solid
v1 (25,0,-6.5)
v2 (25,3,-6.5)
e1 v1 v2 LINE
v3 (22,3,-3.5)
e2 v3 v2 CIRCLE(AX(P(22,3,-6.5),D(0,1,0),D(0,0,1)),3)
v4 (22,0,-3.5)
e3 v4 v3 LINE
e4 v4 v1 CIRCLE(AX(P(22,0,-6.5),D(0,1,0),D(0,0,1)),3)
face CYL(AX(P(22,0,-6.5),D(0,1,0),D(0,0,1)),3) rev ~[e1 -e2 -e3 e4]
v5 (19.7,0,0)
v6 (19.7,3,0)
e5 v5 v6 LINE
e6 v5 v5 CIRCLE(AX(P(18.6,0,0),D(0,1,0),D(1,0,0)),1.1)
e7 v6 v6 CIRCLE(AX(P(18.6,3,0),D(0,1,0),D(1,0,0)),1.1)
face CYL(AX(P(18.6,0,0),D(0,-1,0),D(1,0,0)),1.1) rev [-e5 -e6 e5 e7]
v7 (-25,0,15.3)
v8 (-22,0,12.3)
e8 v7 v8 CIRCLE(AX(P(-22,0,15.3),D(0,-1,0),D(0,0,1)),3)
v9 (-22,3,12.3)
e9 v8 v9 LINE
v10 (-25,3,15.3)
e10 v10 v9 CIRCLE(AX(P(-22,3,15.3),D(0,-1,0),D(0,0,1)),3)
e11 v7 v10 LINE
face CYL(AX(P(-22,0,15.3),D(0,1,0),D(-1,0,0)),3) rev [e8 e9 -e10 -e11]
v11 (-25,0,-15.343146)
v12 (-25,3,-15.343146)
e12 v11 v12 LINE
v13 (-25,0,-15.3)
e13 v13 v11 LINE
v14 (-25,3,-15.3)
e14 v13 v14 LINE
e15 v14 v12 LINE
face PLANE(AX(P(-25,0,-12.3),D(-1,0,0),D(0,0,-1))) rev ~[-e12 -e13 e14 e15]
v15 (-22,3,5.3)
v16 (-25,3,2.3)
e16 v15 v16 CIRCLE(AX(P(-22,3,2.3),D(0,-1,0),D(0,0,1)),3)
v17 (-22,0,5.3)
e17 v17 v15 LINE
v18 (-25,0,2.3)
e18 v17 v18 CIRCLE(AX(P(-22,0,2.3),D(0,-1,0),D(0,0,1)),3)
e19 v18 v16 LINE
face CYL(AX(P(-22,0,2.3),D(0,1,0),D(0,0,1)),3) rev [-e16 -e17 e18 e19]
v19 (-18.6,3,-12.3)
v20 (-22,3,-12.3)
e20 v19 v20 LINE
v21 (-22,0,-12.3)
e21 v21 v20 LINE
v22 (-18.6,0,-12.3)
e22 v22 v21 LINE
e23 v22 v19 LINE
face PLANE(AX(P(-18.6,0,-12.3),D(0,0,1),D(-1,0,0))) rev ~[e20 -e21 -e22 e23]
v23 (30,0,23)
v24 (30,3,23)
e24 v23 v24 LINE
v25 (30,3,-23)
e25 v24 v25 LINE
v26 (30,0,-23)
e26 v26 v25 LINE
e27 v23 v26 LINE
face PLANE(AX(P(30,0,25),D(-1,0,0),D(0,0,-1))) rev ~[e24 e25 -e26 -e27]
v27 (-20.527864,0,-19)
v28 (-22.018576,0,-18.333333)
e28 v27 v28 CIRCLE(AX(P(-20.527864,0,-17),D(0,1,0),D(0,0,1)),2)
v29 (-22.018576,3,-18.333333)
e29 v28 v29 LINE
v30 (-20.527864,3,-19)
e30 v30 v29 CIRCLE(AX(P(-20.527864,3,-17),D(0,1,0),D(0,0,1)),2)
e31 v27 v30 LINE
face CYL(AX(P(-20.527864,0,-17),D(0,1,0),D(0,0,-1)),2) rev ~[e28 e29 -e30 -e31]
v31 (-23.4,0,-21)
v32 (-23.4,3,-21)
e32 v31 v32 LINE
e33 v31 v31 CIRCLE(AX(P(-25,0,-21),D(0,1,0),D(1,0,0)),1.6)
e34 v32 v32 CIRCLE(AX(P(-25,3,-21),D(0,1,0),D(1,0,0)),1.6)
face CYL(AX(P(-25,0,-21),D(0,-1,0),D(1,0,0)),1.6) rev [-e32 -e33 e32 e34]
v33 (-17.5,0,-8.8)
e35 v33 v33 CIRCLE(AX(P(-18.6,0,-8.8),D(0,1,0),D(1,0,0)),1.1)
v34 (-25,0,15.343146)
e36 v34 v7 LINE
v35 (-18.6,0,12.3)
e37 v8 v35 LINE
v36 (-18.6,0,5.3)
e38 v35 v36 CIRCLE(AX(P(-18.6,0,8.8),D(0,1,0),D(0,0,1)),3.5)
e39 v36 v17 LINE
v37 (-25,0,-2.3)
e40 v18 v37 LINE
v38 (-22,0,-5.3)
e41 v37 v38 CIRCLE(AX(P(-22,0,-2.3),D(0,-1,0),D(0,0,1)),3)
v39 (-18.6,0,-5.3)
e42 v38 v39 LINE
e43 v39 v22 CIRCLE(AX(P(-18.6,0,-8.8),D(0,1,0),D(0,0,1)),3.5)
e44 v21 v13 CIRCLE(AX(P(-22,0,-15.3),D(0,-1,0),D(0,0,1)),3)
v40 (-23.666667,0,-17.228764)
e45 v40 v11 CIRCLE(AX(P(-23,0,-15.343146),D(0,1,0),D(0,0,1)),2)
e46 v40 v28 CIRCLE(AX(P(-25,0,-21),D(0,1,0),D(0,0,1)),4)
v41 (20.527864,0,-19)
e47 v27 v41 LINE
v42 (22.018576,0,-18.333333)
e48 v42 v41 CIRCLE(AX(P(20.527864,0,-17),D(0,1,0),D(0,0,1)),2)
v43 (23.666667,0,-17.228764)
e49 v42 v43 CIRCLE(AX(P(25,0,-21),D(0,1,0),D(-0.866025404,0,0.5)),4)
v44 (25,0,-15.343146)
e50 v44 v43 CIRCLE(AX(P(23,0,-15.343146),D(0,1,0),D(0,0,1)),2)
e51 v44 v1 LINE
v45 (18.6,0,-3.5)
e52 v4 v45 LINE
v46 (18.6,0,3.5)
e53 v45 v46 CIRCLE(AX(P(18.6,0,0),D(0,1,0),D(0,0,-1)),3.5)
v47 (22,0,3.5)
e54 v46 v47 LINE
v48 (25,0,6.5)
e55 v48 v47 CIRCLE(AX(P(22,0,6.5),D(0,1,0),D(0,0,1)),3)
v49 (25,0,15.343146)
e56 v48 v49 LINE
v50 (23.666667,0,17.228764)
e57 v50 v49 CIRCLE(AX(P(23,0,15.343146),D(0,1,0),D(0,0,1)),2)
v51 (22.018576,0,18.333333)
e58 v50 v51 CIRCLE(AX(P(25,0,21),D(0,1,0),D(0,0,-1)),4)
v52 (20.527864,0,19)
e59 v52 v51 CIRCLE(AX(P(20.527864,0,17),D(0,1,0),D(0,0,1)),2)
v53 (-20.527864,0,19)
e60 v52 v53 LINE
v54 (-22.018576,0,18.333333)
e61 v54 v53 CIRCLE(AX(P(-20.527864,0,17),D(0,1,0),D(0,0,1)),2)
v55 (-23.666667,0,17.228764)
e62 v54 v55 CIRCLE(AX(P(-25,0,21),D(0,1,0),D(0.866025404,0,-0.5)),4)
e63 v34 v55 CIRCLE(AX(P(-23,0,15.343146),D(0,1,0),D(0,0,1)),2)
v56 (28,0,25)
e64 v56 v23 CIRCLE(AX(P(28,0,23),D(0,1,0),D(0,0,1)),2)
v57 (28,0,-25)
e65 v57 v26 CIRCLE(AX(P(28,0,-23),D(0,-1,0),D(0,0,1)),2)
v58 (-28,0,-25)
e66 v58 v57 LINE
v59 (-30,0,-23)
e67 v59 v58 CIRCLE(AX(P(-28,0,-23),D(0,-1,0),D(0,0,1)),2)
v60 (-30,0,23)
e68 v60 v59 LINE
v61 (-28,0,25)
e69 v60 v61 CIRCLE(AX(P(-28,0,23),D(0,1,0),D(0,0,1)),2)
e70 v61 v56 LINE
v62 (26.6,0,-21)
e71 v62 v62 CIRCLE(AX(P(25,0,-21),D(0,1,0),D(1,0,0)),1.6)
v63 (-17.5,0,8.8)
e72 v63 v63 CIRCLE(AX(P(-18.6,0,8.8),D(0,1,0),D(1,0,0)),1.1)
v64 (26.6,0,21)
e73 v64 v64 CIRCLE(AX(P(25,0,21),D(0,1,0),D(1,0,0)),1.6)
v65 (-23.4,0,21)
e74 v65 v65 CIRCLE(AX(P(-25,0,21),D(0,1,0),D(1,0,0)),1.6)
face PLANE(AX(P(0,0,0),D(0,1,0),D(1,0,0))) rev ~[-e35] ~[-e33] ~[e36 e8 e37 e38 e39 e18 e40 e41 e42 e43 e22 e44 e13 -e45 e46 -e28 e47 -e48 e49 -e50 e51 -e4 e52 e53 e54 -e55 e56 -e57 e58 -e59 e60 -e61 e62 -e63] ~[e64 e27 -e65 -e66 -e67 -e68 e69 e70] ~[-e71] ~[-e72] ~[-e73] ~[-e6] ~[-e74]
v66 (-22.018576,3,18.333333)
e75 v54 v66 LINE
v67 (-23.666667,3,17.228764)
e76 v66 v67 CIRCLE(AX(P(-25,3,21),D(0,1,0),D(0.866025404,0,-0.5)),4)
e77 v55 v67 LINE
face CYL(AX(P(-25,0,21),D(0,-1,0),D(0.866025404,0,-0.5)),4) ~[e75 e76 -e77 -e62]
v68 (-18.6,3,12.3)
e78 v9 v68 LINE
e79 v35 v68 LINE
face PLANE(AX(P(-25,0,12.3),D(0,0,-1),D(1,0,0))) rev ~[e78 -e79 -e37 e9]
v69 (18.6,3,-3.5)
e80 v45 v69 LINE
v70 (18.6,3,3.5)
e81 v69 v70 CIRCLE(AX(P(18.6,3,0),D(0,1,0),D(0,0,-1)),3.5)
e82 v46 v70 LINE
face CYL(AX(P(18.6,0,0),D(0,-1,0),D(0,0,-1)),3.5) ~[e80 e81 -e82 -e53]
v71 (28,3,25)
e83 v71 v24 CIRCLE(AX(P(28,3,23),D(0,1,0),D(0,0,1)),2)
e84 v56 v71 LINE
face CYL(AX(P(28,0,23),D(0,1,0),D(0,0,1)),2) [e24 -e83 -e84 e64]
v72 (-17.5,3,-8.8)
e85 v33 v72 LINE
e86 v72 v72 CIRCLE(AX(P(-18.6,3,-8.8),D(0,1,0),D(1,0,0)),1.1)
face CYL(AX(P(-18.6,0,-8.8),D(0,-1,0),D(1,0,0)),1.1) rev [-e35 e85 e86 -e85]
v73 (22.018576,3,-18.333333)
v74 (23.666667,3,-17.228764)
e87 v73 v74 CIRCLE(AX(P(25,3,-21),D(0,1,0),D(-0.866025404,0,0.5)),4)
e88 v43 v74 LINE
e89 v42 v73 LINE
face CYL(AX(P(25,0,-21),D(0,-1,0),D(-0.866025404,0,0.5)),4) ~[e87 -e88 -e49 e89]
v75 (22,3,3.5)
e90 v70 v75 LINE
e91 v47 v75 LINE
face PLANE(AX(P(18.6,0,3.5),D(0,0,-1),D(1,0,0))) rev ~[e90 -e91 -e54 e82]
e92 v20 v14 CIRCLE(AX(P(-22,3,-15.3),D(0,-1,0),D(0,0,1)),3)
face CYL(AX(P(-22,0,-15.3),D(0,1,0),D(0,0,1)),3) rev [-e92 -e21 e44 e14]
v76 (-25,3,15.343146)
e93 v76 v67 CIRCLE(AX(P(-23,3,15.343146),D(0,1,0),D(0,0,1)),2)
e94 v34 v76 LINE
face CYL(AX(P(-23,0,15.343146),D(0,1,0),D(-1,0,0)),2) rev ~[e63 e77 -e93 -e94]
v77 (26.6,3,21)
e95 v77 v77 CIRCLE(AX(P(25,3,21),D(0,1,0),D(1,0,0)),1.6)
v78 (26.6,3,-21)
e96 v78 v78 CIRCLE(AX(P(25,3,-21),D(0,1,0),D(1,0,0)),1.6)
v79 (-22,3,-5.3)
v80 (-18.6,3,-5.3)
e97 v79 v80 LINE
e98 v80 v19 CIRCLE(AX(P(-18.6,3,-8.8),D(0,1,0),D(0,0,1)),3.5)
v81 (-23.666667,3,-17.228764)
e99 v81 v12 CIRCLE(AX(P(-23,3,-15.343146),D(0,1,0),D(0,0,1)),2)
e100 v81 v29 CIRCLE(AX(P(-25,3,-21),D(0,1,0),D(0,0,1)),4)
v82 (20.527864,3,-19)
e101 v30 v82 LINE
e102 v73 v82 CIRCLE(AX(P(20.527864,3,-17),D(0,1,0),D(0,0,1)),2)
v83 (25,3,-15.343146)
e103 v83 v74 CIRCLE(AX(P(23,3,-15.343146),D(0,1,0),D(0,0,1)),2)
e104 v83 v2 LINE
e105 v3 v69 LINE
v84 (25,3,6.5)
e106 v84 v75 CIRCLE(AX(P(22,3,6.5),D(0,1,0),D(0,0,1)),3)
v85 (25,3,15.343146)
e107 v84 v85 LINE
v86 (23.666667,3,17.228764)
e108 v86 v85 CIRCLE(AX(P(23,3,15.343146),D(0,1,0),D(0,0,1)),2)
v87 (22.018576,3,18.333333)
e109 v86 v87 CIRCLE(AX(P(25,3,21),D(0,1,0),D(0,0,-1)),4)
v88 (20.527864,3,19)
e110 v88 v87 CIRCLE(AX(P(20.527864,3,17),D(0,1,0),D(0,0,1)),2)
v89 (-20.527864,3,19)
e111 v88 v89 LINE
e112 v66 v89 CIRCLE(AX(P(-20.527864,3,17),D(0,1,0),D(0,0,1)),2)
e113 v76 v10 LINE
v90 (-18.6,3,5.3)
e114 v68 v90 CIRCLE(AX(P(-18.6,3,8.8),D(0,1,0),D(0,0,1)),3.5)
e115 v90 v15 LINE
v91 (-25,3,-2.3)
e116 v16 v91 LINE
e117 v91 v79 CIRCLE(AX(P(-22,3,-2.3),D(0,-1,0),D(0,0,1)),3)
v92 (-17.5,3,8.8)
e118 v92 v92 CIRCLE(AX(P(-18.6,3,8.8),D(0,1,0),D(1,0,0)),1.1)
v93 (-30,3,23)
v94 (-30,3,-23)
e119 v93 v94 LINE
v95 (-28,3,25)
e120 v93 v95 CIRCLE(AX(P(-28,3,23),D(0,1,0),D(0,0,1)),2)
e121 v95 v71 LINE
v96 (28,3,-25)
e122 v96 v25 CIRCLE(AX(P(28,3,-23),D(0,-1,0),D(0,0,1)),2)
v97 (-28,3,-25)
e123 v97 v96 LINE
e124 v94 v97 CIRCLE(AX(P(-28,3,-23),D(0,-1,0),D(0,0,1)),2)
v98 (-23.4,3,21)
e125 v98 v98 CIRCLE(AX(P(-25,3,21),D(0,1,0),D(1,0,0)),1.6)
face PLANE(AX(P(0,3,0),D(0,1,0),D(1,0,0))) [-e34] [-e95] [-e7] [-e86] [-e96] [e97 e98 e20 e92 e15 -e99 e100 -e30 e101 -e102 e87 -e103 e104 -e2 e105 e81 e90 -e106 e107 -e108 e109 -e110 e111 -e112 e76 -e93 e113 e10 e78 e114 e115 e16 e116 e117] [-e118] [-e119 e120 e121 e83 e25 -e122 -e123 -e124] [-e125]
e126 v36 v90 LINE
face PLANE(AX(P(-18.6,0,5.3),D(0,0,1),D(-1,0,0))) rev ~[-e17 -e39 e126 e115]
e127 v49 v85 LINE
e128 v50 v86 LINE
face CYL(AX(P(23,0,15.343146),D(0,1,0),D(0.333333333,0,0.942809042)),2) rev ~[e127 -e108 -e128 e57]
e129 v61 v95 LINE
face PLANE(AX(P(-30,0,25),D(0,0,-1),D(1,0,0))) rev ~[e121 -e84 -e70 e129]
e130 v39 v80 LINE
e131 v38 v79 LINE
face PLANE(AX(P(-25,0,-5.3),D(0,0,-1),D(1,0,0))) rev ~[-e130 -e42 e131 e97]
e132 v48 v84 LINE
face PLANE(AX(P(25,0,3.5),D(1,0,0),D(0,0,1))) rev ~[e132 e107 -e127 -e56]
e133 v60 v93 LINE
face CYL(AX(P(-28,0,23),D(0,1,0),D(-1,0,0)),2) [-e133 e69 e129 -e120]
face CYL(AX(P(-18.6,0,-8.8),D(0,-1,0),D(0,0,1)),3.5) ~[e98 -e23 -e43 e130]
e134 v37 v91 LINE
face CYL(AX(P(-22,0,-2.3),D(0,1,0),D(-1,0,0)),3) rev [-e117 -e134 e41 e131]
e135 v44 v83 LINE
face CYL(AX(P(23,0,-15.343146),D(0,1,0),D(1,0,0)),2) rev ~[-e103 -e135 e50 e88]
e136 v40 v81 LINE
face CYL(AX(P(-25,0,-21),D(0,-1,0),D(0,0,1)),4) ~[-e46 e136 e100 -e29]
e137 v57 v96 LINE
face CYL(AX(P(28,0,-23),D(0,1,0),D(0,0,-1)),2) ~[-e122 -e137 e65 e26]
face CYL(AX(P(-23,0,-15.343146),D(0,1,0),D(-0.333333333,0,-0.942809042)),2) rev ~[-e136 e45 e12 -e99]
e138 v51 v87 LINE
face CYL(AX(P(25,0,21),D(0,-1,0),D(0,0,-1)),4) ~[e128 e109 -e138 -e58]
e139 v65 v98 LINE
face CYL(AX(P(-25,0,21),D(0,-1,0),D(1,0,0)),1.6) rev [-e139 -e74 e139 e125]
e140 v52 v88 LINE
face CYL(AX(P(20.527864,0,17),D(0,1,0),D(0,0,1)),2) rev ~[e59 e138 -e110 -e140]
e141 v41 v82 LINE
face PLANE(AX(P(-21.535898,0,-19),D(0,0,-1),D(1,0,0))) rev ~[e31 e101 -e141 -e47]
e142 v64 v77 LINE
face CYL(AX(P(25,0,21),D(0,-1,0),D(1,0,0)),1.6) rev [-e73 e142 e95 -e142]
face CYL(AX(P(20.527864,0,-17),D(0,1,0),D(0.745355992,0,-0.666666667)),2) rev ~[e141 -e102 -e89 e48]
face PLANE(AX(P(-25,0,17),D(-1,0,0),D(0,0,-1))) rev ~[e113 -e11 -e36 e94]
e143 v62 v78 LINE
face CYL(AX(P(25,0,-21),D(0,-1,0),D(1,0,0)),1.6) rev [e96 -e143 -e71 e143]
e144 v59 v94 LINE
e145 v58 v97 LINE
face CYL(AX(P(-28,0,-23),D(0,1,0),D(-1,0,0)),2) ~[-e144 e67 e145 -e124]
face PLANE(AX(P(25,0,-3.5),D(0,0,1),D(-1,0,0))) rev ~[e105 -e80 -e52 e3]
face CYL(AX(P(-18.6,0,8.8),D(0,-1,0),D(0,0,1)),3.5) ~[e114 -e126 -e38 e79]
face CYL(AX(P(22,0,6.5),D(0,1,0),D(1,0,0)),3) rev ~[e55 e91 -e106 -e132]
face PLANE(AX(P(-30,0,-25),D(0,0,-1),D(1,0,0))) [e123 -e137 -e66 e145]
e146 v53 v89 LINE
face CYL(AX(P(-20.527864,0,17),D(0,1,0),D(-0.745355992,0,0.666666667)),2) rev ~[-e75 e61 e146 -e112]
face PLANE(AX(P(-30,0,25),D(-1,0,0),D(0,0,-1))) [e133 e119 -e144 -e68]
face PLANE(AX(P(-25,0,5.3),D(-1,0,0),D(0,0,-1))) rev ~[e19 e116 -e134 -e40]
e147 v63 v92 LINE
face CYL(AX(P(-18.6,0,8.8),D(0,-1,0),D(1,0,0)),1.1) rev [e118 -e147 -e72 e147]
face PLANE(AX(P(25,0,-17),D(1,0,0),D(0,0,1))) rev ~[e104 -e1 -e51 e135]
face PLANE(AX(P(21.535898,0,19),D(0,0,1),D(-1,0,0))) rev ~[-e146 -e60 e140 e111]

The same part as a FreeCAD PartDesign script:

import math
import FreeCAD as App
import Part
import Sketcher

V = App.Vector
Q = App.Units.Quantity


def edges_at(feature, points):
    """Names of the edges that pass closest to the given points."""
    edges = feature.Shape.Edges
    near = lambda p: min(range(len(edges)), key=lambda i: edges[i].distToShape(Part.Vertex(*p))[0])
    return sorted({f"Edge{near(p) + 1}" for p in points})


def add_polygon(sketch, points):
    """Adds a closed chain of lines whose ends are joined by coincident constraints."""
    first, n = sketch.GeometryCount, len(points)
    for a, b in zip(points, points[1:] + points[:1]):
        sketch.addGeometry(Part.LineSegment(App.Vector(*a, 0), App.Vector(*b, 0)), False)
    for i in range(n):
        sketch.addConstraint(Sketcher.Constraint("Coincident", first + i, 2, first + (i + 1) % n, 1))

doc = App.newDocument("Part")
body = doc.addObject("PartDesign::Body", "Body")

# Sketch on XZ plane
sketch1 = body.newObject("Sketcher::SketchObject", "Sketch")
sketch1.AttachmentSupport = (doc.getObject("XZ_Plane"), [""])
sketch1.MapMode = "FlatFace"
add_polygon(sketch1, [(-30, -25), (-30, 25), (30, 25), (30, -25)])  # lines 0-3
sketch1.addGeometry(Part.Circle(V(-25, 21, 0), V(0, 0, 1), 1.6), False)  # 4
sketch1.addGeometry(Part.Circle(V(-18.6, 8.8, 0), V(0, 0, 1), 1.1), False)  # 5
sketch1.addGeometry(Part.Circle(V(25, 21, 0), V(0, 0, 1), 1.6), False)  # 6
sketch1.addGeometry(Part.Circle(V(-18.6, -8.8, 0), V(0, 0, 1), 1.1), False)  # 7
sketch1.addGeometry(Part.Circle(V(-25, -21, 0), V(0, 0, 1), 1.6), False)  # 8
sketch1.addGeometry(Part.LineSegment(V(-18.6, 5.3, 0), V(-25, 5.3, 0)), False)  # 9
sketch1.addGeometry(Part.LineSegment(V(-25, 5.3, 0), V(-25, -5.3, 0)), False)  # 10
sketch1.addGeometry(Part.LineSegment(V(-25, -5.3, 0), V(-18.6, -5.3, 0)), False)  # 11
sketch1.addGeometry(Part.ArcOfCircle(Part.Circle(V(-18.6, -8.8, 0), V(0, 0, 1), 3.5), math.radians(-90), math.radians(90)), False)  # 12
sketch1.addGeometry(Part.LineSegment(V(-18.6, -12.3, 0), V(-25, -12.3, 0)), False)  # 13
sketch1.addGeometry(Part.LineSegment(V(-25, -12.3, 0), V(-25, -17, 0)), False)  # 14
sketch1.addGeometry(Part.ArcOfCircle(Part.Circle(V(-25, -21, 0), V(0, 0, 1), 4), math.radians(30), math.radians(90)), False)  # 15
sketch1.addGeometry(Part.LineSegment(V(-21.535898, -19, 0), V(21.535898, -19, 0)), False)  # 16
sketch1.addGeometry(Part.ArcOfCircle(Part.Circle(V(25, -21, 0), V(0, 0, 1), 4), math.radians(90), math.radians(150)), False)  # 17
sketch1.addGeometry(Part.LineSegment(V(25, -17, 0), V(25, -3.5, 0)), False)  # 18
sketch1.addGeometry(Part.LineSegment(V(25, -3.5, 0), V(18.6, -3.5, 0)), False)  # 19
sketch1.addGeometry(Part.ArcOfCircle(Part.Circle(V(18.6, 0, 0), V(0, 0, 1), 3.5), math.radians(90), math.radians(270)), False)  # 20
sketch1.addGeometry(Part.LineSegment(V(18.6, 3.5, 0), V(25, 3.5, 0)), False)  # 21
sketch1.addGeometry(Part.LineSegment(V(25, 3.5, 0), V(25, 17, 0)), False)  # 22
sketch1.addGeometry(Part.ArcOfCircle(Part.Circle(V(25, 21, 0), V(0, 0, 1), 4), math.radians(-150), math.radians(-90)), False)  # 23
sketch1.addGeometry(Part.LineSegment(V(21.535898, 19, 0), V(-21.535898, 19, 0)), False)  # 24
sketch1.addGeometry(Part.ArcOfCircle(Part.Circle(V(-25, 21, 0), V(0, 0, 1), 4), math.radians(-90), math.radians(-30)), False)  # 25
sketch1.addGeometry(Part.LineSegment(V(-25, 17, 0), V(-25, 12.3, 0)), False)  # 26
sketch1.addGeometry(Part.LineSegment(V(-25, 12.3, 0), V(-18.6, 12.3, 0)), False)  # 27
sketch1.addGeometry(Part.ArcOfCircle(Part.Circle(V(-18.6, 8.8, 0), V(0, 0, 1), 3.5), math.radians(-90), math.radians(90)), False)  # 28
sketch1.addGeometry(Part.Circle(V(18.6, 0, 0), V(0, 0, 1), 1.1), False)  # 29
sketch1.addGeometry(Part.Circle(V(25, -21, 0), V(0, 0, 1), 1.6), False)  # 30
sketch1.addConstraint(Sketcher.Constraint("Coincident", 9, 2, 10, 1))
sketch1.addConstraint(Sketcher.Constraint("Coincident", 10, 2, 11, 1))
sketch1.addConstraint(Sketcher.Constraint("Tangent", 11, 2, 12, 2))
sketch1.addConstraint(Sketcher.Constraint("Tangent", 12, 1, 13, 1))
sketch1.addConstraint(Sketcher.Constraint("Coincident", 13, 2, 14, 1))
sketch1.addConstraint(Sketcher.Constraint("Coincident", 14, 2, 15, 2))
sketch1.addConstraint(Sketcher.Constraint("Coincident", 15, 1, 16, 1))
sketch1.addConstraint(Sketcher.Constraint("Coincident", 16, 2, 17, 2))
sketch1.addConstraint(Sketcher.Constraint("Coincident", 17, 1, 18, 1))
sketch1.addConstraint(Sketcher.Constraint("Coincident", 18, 2, 19, 1))
sketch1.addConstraint(Sketcher.Constraint("Tangent", 19, 2, 20, 2))
sketch1.addConstraint(Sketcher.Constraint("Tangent", 20, 1, 21, 1))
sketch1.addConstraint(Sketcher.Constraint("Coincident", 21, 2, 22, 1))
sketch1.addConstraint(Sketcher.Constraint("Coincident", 22, 2, 23, 2))
sketch1.addConstraint(Sketcher.Constraint("Coincident", 23, 1, 24, 1))
sketch1.addConstraint(Sketcher.Constraint("Coincident", 24, 2, 25, 2))
sketch1.addConstraint(Sketcher.Constraint("Coincident", 25, 1, 26, 1))
sketch1.addConstraint(Sketcher.Constraint("Coincident", 26, 2, 27, 1))
sketch1.addConstraint(Sketcher.Constraint("Tangent", 27, 2, 28, 2))
sketch1.addConstraint(Sketcher.Constraint("Tangent", 28, 1, 9, 1))
sketch1.addConstraint(Sketcher.Constraint("Vertical", 0))
sketch1.addConstraint(Sketcher.Constraint("Horizontal", 1))
sketch1.addConstraint(Sketcher.Constraint("Vertical", 2))
sketch1.addConstraint(Sketcher.Constraint("Horizontal", 3))
sketch1.addConstraint(Sketcher.Constraint("Horizontal", 9))
sketch1.addConstraint(Sketcher.Constraint("Vertical", 10))
sketch1.addConstraint(Sketcher.Constraint("Horizontal", 11))
sketch1.addConstraint(Sketcher.Constraint("Horizontal", 13))
sketch1.addConstraint(Sketcher.Constraint("Vertical", 14))
sketch1.addConstraint(Sketcher.Constraint("Horizontal", 16))
sketch1.addConstraint(Sketcher.Constraint("Vertical", 18))
sketch1.addConstraint(Sketcher.Constraint("Horizontal", 19))
sketch1.addConstraint(Sketcher.Constraint("Horizontal", 21))
sketch1.addConstraint(Sketcher.Constraint("Vertical", 22))
sketch1.addConstraint(Sketcher.Constraint("Horizontal", 24))
sketch1.addConstraint(Sketcher.Constraint("Vertical", 26))
sketch1.addConstraint(Sketcher.Constraint("Horizontal", 27))
sketch1.addConstraint(Sketcher.Constraint("Coincident", 12, 3, 7, 3))
sketch1.addConstraint(Sketcher.Constraint("Coincident", 15, 3, 8, 3))
sketch1.addConstraint(Sketcher.Constraint("Coincident", 23, 3, 6, 3))
sketch1.addConstraint(Sketcher.Constraint("Coincident", 25, 3, 4, 3))
sketch1.addConstraint(Sketcher.Constraint("Coincident", 28, 3, 5, 3))
sketch1.addConstraint(Sketcher.Constraint("Coincident", 29, 3, 20, 3))
sketch1.addConstraint(Sketcher.Constraint("Coincident", 30, 3, 17, 3))
sketch1.addConstraint(Sketcher.Constraint("Equal", 4, 6))
sketch1.addConstraint(Sketcher.Constraint("Equal", 5, 7))
sketch1.addConstraint(Sketcher.Constraint("Equal", 6, 8))
sketch1.addConstraint(Sketcher.Constraint("Equal", 15, 17))
sketch1.addConstraint(Sketcher.Constraint("Equal", 12, 20))
sketch1.addConstraint(Sketcher.Constraint("Equal", 17, 23))
sketch1.addConstraint(Sketcher.Constraint("Equal", 23, 25))
sketch1.addConstraint(Sketcher.Constraint("Equal", 20, 28))
sketch1.addConstraint(Sketcher.Constraint("Equal", 7, 29))
sketch1.addConstraint(Sketcher.Constraint("Equal", 8, 30))
sketch1.addConstraint(Sketcher.Constraint("Symmetric", 6, 3, 8, 3, -1, 1))
sketch1.addConstraint(Sketcher.Constraint("Symmetric", 4, 3, 17, 3, -1, 1))
sketch1.addConstraint(Sketcher.Constraint("Symmetric", 0, 2, 2, 2, -1, 1))
sketch1.addConstraint(Sketcher.Constraint("Symmetric", 4, 3, 6, 3, -2))
sketch1.addConstraint(Sketcher.Constraint("Symmetric", 5, 3, 7, 3, -1))
sketch1.addConstraint(Sketcher.Constraint("Symmetric", 18, 2, 21, 2, -1))
sketch1.addConstraint(Sketcher.Constraint("Vertical", 25, 3, 9, 2))
sketch1.addConstraint(Sketcher.Constraint("Vertical", 10, 2, 13, 2))
sketch1.addConstraint(Sketcher.Constraint("Vertical", 30, 3, 17, 1))
sketch1.addConstraint(Sketcher.Constraint("Vertical", 16, 2, 23, 1))
sketch1.addConstraint(Sketcher.Constraint("Vertical", 14, 2, 25, 1))
sketch1.addConstraint(Sketcher.Constraint("Equal", 13, 19))
sketch1.addConstraint(Sketcher.Constraint("Radius", 15, Q("4 mm")))
sketch1.addConstraint(Sketcher.Constraint("Diameter", 4, Q("3.2 mm")))
sketch1.addConstraint(Sketcher.Constraint("Diameter", 5, Q("2.2 mm")))
sketch1.addConstraint(Sketcher.Constraint("Radius", 12, Q("3.5 mm")))
sketch1.addConstraint(Sketcher.Constraint("DistanceX", 1, 1, 1, 2, Q("60 mm")))
sketch1.addConstraint(Sketcher.Constraint("DistanceY", 0, 1, 0, 2, Q("50 mm")))
sketch1.addConstraint(Sketcher.Constraint("DistanceX", 9, 2, 9, 1, Q("6.4 mm")))
sketch1.addConstraint(Sketcher.Constraint("DistanceY", 10, 2, 10, 1, Q("10.6 mm")))
sketch1.addConstraint(Sketcher.Constraint("DistanceY", 14, 2, 14, 1, Q("4.7 mm")))
sketch1.addConstraint(Sketcher.Constraint("DistanceX", 4, 3, -1, 1, Q("25 mm")))
sketch1.addConstraint(Sketcher.Constraint("DistanceY", 15, 1, -1, 1, Q("19 mm")))
pad1 = body.newObject("PartDesign::Pad", "Pad")
pad1.Profile = sketch1
pad1.Length = 3
pad1.Reversed = True
doc.recompute()

fillet = body.newObject("PartDesign::Fillet", "Fillet")
fillet.Base = (pad1, edges_at(pad1, [
    (30, 1.5, 25),
    (-30, 1.5, 25),
    (-30, 1.5, -25),
    (30, 1.5, -25),
]))
fillet.Radius = 2
doc.recompute()

fillet2 = body.newObject("PartDesign::Fillet", "Fillet001")
fillet2.Base = (fillet, edges_at(fillet, [
    (-25, 1.5, 17),
    (-21.536, 1.5, 19),
    (21.536, 1.5, 19),
    (25, 1.5, 17),
    (25, 1.5, -17),
    (21.536, 1.5, -19),
    (-21.536, 1.5, -19),
    (-25, 1.5, -17),
]))
fillet2.Radius = 2
doc.recompute()

fillet3 = body.newObject("PartDesign::Fillet", "Fillet002")
fillet3.Base = (fillet2, edges_at(fillet2, [
    (-25, 1.5, -5.3),
    (-25, 1.5, 5.3),
    (-25, 1.5, 12.3),
    (25, 1.5, 3.5),
    (25, 1.5, -3.5),
    (-25, 1.5, -12.3),
]))
fillet3.Radius = 3

doc.recompute()
